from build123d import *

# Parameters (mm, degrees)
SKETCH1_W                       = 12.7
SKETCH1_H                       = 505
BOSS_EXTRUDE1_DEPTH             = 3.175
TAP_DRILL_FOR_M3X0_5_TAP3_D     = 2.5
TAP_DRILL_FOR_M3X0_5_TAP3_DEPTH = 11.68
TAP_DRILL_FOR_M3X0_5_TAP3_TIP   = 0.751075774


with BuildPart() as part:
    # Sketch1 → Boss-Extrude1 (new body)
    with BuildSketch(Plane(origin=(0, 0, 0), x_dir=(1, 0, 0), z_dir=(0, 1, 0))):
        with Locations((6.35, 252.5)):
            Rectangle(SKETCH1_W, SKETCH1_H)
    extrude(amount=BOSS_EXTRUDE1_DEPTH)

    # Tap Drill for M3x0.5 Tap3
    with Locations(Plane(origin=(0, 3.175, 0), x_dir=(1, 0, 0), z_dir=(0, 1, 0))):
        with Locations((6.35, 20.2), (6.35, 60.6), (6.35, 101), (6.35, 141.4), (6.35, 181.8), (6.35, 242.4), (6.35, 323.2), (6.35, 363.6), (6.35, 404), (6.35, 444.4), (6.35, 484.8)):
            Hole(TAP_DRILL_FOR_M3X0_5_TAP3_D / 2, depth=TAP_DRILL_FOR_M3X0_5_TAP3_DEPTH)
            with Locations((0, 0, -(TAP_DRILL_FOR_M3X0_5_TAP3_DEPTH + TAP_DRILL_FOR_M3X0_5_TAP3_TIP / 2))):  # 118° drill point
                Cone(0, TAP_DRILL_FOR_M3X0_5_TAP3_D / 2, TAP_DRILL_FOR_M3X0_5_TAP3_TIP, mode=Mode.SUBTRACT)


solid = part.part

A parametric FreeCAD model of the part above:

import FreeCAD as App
import Part
import Sketcher

V = App.Vector
Q = App.Units.Quantity


def add_polygon(sketch, points):
    """Adds a closed chain of lines whose ends are joined by coincident constraints."""
    first, n = sketch.GeometryCount, len(points)
    for a, b in zip(points, points[1:] + points[:1]):
        sketch.addGeometry(Part.LineSegment(App.Vector(*a, 0), App.Vector(*b, 0)), False)
    for i in range(n):
        sketch.addConstraint(Sketcher.Constraint("Coincident", first + i, 2, first + (i + 1) % n, 1))

doc = App.newDocument("Part")
body = doc.addObject("PartDesign::Body", "Body")

# Sketch on XZ plane
sketch1 = body.newObject("Sketcher::SketchObject", "Sketch")
sketch1.AttachmentSupport = (doc.getObject("XZ_Plane"), [""])
sketch1.MapMode = "FlatFace"
add_polygon(sketch1, [(0, -505), (0, 0), (13, 0), (13, -505)])  # lines 0-3
sketch1.addConstraint([
    Sketcher.Constraint("Vertical", 0),
    Sketcher.Constraint("Horizontal", 1),
    Sketcher.Constraint("Vertical", 2),
    Sketcher.Constraint("Horizontal", 3),
    Sketcher.Constraint("Coincident", 0, 2, -1, 1),
    Sketcher.Constraint("DistanceY", 0, 1, 0, 2, Q("505 mm")),
    Sketcher.Constraint("DistanceX", 1, 1, 1, 2, Q("12.7 mm")),
])
pad1 = body.newObject("PartDesign::Pad", "Pad")
pad1.Profile = sketch1
pad1.Length = 3.175
pad1.Reversed = True

# Sketch on XZ plane
sketch2 = body.newObject("Sketcher::SketchObject", "Sketch001")
sketch2.AttachmentSupport = (doc.getObject("XZ_Plane"), [""])
sketch2.MapMode = "FlatFace"
sketch2.AttachmentOffset = App.Placement(V(0, 0, -3.175), App.Rotation())
sketch2.addGeometry([
    Part.Circle(V(6.3, -20.2, 0), V(0, 0, 1), 1.2),  # 0
    Part.Circle(V(6.3, -60.6, 0), V(0, 0, 1), 1.2),  # 1
    Part.Circle(V(6.3, -101, 0), V(0, 0, 1), 1.2),  # 2
    Part.Circle(V(6.3, -141.4, 0), V(0, 0, 1), 1.2),  # 3
    Part.Circle(V(6.3, -181.8, 0), V(0, 0, 1), 1.2),  # 4
    Part.Circle(V(6.3, -242.4, 0), V(0, 0, 1), 1.2),  # 5
    Part.Circle(V(6.3, -323.2, 0), V(0, 0, 1), 1.2),  # 6
    Part.Circle(V(6.3, -363.6, 0), V(0, 0, 1), 1.2),  # 7
    Part.Circle(V(6.3, -404, 0), V(0, 0, 1), 1.2),  # 8
    Part.Circle(V(6.3, -444.4, 0), V(0, 0, 1), 1.2),  # 9
    Part.Circle(V(6.3, -484.8, 0), V(0, 0, 1), 1.2),  # 10
], False)
sketch2.addConstraint([
    Sketcher.Constraint("Equal", 0, 1),
    Sketcher.Constraint("Equal", 1, 2),
    Sketcher.Constraint("Equal", 2, 3),
    Sketcher.Constraint("Equal", 3, 4),
    Sketcher.Constraint("Equal", 4, 5),
    Sketcher.Constraint("Equal", 5, 6),
    Sketcher.Constraint("Equal", 6, 7),
    Sketcher.Constraint("Equal", 7, 8),
    Sketcher.Constraint("Equal", 8, 9),
    Sketcher.Constraint("Equal", 9, 10),
    Sketcher.Constraint("Vertical", 0, 3, 1, 3),
    Sketcher.Constraint("Vertical", 1, 3, 2, 3),
    Sketcher.Constraint("Vertical", 2, 3, 3, 3),
    Sketcher.Constraint("Vertical", 3, 3, 4, 3),
    Sketcher.Constraint("Vertical", 4, 3, 5, 3),
    Sketcher.Constraint("Vertical", 5, 3, 6, 3),
    Sketcher.Constraint("Vertical", 6, 3, 7, 3),
    Sketcher.Constraint("Vertical", 7, 3, 8, 3),
    Sketcher.Constraint("Vertical", 8, 3, 9, 3),
    Sketcher.Constraint("Vertical", 9, 3, 10, 3),
    Sketcher.Constraint("Diameter", 0, Q("2.5 mm")),
    Sketcher.Constraint("DistanceY", 2, 3, -1, 1, Q("101 mm")),
    Sketcher.Constraint("DistanceY", 8, 3, -1, 1, Q("404 mm")),
    Sketcher.Constraint("DistanceY", 5, 3, 3, 3, Q("101 mm")),
    Sketcher.Constraint("DistanceY", 9, 3, 5, 3, Q("202 mm")),
    Sketcher.Constraint("DistanceY", 0, 3, -1, 1, Q("20.2 mm")),
    Sketcher.Constraint("DistanceY", 1, 3, -1, 1, Q("60.6 mm")),
    Sketcher.Constraint("DistanceY", 3, 3, -1, 1, Q("141.4 mm")),
    Sketcher.Constraint("DistanceY", 4, 3, -1, 1, Q("181.8 mm")),
    Sketcher.Constraint("DistanceY", 6, 3, -1, 1, Q("323.2 mm")),
    Sketcher.Constraint("DistanceY", 7, 3, -1, 1, Q("363.6 mm")),
    Sketcher.Constraint("DistanceY", 10, 3, -1, 1, Q("484.8 mm")),
    Sketcher.Constraint("DistanceX", -1, 1, 0, 3, Q("6.35 mm")),
])
doc.recompute()
hole = body.newObject("PartDesign::Hole", "Hole")
hole.Profile = sketch2
hole.ThreadType = "None"
hole.Diameter = 2.5
hole.DepthType = "Dimension"
hole.Depth = 11.68
hole.DrillPoint = "Angled"
hole.DrillPointAngle = 118
hole.Reversed = True

doc.recompute()
